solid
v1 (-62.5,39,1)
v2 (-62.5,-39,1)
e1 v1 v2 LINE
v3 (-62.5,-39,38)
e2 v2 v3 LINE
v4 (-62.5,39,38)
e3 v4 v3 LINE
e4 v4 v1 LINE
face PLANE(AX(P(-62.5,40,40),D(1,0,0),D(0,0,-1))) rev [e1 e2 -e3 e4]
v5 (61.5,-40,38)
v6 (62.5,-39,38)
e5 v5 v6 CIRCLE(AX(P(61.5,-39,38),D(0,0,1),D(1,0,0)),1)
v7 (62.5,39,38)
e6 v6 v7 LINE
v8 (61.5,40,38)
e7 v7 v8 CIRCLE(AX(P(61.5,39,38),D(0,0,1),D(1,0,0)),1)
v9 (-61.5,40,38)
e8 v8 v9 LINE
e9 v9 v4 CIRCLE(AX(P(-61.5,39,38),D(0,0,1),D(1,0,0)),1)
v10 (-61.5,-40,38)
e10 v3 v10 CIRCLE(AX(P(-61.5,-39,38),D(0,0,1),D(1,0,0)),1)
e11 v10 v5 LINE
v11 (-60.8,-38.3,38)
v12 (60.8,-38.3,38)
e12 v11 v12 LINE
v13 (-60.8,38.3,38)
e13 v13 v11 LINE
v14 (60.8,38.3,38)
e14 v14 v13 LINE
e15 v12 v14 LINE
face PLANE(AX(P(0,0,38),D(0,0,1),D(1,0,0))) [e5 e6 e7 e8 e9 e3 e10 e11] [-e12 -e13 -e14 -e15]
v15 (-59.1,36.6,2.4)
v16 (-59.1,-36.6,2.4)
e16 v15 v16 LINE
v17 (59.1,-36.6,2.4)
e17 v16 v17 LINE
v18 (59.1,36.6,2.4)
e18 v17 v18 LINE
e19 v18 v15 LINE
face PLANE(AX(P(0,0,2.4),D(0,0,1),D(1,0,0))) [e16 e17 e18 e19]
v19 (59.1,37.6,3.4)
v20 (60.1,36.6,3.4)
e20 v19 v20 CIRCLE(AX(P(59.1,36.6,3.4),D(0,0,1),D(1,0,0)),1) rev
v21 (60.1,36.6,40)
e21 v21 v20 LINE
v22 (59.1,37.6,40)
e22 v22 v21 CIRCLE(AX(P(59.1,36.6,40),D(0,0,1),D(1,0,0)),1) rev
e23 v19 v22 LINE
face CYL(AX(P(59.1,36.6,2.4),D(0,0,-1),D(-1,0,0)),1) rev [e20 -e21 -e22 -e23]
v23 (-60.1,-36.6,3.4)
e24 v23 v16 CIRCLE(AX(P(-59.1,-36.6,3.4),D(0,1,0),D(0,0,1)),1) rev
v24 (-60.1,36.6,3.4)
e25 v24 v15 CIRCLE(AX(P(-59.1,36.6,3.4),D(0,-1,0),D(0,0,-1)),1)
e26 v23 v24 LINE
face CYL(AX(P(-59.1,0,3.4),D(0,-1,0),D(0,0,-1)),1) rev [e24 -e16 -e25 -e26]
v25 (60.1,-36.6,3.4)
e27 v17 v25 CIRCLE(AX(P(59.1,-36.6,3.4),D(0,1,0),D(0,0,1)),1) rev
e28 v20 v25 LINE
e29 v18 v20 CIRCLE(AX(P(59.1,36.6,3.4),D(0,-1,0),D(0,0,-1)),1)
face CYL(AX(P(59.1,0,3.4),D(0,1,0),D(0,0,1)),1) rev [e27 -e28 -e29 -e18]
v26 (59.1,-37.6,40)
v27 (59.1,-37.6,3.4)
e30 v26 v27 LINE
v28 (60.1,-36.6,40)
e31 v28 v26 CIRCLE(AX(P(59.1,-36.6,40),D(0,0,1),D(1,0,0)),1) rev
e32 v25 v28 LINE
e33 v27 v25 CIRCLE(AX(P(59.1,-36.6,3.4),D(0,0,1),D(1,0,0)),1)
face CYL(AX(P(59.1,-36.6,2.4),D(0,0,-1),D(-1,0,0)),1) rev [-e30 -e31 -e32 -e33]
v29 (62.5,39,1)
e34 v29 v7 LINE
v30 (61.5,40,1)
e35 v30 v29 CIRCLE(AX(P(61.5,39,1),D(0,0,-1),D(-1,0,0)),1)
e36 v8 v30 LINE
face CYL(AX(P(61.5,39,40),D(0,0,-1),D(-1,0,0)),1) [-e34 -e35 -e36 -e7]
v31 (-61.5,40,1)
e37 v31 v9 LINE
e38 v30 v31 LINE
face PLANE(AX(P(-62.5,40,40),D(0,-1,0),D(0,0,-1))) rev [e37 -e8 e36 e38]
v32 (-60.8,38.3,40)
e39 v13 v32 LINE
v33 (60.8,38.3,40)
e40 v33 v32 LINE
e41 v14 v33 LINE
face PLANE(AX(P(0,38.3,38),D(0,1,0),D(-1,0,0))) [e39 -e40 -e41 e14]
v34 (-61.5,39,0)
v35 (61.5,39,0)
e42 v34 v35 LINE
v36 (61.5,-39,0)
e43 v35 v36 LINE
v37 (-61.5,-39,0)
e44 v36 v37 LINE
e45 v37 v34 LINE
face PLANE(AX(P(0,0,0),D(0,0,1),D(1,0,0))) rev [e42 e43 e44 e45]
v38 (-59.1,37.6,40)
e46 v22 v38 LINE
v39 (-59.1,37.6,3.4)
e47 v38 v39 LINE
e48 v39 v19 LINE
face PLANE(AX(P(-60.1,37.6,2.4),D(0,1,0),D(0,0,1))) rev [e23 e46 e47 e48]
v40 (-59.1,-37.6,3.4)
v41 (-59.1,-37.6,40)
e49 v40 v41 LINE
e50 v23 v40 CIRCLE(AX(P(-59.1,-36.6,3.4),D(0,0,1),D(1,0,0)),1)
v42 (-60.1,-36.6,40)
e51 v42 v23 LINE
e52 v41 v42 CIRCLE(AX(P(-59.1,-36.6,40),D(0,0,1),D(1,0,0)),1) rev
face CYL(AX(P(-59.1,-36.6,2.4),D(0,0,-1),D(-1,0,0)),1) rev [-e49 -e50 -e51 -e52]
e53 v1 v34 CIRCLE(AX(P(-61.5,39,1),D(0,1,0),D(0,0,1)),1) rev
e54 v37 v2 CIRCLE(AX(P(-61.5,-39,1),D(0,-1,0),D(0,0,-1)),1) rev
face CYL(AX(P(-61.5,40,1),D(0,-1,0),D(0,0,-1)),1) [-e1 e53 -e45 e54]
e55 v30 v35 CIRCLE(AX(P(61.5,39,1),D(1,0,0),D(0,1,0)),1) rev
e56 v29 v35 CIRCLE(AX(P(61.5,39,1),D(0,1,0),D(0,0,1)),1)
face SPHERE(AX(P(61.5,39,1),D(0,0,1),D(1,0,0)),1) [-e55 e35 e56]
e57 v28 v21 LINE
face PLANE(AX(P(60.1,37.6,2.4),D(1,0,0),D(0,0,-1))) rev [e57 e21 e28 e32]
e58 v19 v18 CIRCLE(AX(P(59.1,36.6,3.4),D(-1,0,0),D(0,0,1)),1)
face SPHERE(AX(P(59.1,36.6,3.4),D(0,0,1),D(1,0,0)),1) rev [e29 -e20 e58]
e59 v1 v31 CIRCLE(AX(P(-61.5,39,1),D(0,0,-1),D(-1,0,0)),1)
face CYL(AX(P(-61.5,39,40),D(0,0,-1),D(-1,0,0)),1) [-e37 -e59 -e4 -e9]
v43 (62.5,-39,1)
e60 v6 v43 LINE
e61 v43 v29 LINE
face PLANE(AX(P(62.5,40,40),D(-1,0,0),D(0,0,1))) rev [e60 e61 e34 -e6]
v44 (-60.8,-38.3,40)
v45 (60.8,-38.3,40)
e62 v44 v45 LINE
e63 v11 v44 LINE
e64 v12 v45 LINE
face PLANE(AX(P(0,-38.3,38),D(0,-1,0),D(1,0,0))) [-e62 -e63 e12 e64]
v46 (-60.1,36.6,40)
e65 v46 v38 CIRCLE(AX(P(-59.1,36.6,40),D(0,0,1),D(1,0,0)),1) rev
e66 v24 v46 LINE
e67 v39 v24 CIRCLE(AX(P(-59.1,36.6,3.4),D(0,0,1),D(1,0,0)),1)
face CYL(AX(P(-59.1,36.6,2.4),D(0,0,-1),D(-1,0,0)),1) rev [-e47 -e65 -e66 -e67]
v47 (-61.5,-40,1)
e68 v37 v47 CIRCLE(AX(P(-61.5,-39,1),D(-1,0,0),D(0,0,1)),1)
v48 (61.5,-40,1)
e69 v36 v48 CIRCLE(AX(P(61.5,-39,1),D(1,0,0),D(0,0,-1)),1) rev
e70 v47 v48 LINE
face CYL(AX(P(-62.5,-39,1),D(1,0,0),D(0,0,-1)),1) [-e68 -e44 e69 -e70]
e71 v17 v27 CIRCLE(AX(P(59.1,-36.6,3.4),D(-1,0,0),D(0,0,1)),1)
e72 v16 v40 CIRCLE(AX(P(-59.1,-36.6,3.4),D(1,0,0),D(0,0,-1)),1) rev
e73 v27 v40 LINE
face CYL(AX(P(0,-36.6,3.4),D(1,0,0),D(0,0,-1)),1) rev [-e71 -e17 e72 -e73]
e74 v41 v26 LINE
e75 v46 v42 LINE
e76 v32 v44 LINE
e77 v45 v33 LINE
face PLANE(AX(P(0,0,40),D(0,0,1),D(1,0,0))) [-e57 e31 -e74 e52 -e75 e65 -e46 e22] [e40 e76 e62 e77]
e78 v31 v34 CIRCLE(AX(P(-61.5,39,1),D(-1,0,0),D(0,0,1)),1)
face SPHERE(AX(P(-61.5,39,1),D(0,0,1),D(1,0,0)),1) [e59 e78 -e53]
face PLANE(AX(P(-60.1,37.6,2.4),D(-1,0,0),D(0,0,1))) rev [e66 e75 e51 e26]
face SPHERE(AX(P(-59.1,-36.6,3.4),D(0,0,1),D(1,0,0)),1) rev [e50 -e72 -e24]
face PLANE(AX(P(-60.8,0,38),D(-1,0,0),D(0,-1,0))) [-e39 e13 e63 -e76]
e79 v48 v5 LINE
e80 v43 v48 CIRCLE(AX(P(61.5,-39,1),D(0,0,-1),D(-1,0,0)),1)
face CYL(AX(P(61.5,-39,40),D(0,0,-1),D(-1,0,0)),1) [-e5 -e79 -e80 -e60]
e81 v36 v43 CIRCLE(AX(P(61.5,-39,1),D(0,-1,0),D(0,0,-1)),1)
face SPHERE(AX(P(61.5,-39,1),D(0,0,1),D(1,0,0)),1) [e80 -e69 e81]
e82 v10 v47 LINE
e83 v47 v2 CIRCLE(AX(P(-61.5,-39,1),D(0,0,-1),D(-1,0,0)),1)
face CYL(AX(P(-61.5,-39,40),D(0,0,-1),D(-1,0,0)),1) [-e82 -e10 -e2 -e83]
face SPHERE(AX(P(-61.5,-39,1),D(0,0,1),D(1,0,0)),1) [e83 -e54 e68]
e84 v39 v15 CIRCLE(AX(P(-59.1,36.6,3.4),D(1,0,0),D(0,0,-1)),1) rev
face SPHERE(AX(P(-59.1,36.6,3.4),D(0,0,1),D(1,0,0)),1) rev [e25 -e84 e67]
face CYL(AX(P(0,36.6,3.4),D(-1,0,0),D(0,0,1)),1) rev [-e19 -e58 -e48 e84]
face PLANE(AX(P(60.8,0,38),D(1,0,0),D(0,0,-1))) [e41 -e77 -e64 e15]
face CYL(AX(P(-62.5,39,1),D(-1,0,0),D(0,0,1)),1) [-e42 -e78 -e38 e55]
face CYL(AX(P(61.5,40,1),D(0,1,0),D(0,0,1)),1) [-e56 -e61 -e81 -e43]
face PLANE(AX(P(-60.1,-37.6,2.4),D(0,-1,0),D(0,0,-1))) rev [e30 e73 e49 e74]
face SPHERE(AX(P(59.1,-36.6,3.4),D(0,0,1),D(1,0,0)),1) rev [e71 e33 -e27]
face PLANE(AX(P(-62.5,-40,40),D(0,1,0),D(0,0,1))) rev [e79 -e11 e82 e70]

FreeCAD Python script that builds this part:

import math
import FreeCAD as App
import Part
import Sketcher
from FreeCAD import Vector


def edges_at(feature, points):
    """Names of the edges that pass closest to the given points."""
    edges = feature.Shape.Edges
    near = lambda p: min(range(len(edges)), key=lambda i: edges[i].distToShape(Part.Vertex(*p))[0])
    return sorted({f"Edge{near(p) + 1}" for p in points})

doc = App.newDocument("Part")
body = doc.addObject("PartDesign::Body", "Body")

# Sketch on XY plane
sketch1 = doc.addObject("Sketcher::SketchObject", "Sketch")
body.addObject(sketch1)
sketch1.AttachmentSupport = (doc.XY_Plane, [""])
sketch1.MapMode = "FlatFace"
sketch1.addGeometry([
    Part.LineSegment(Vector(-62, 40, 0), Vector(-62, -40, 0)),
    Part.LineSegment(Vector(-62, -40, 0), Vector(62, -40, 0)),
    Part.LineSegment(Vector(62, -40, 0), Vector(62, 40, 0)),
    Part.LineSegment(Vector(62, 40, 0), Vector(-62, 40, 0)),
], False)
sketch1.addConstraint([
    Sketcher.Constraint("Coincident", 0, 2, 1, 1),
    Sketcher.Constraint("Coincident", 1, 2, 2, 1),
    Sketcher.Constraint("Coincident", 2, 2, 3, 1),
    Sketcher.Constraint("Coincident", 3, 2, 0, 1),
    Sketcher.Constraint("Vertical", 0),
    Sketcher.Constraint("Horizontal", 1),
    Sketcher.Constraint("Vertical", 2),
    Sketcher.Constraint("Horizontal", 3),
    Sketcher.Constraint("Symmetric", 0, 2, 2, 2, -1, 1),
    Sketcher.Constraint("DistanceX", 1, 1, 1, 2, 125.0),
    Sketcher.Constraint("DistanceY", 0, 2, 0, 1, 80.0),
])
pad1 = doc.addObject("PartDesign::Pad", "Pad")
body.addObject(pad1)
pad1.Profile = sketch1
pad1.Length = 40

# Sketch on XY plane
sketch2 = doc.addObject("Sketcher::SketchObject", "Sketch001")
body.addObject(sketch2)
sketch2.AttachmentSupport = (doc.XY_Plane, [""])
sketch2.MapMode = "FlatFace"
sketch2.AttachmentOffset = App.Placement(Vector(0, 0, 40), App.Rotation())
sketch2.addGeometry([
    Part.LineSegment(Vector(-60, 38, 0), Vector(-60, -38, 0)),
    Part.LineSegment(Vector(-60, -38, 0), Vector(60, -38, 0)),
    Part.LineSegment(Vector(60, -38, 0), Vector(60, 38, 0)),
    Part.LineSegment(Vector(60, 38, 0), Vector(-60, 38, 0)),
], False)
sketch2.addConstraint([
    Sketcher.Constraint("Coincident", 0, 2, 1, 1),
    Sketcher.Constraint("Coincident", 1, 2, 2, 1),
    Sketcher.Constraint("Coincident", 2, 2, 3, 1),
    Sketcher.Constraint("Coincident", 3, 2, 0, 1),
    Sketcher.Constraint("Vertical", 0),
    Sketcher.Constraint("Horizontal", 1),
    Sketcher.Constraint("Vertical", 2),
    Sketcher.Constraint("Horizontal", 3),
    Sketcher.Constraint("Symmetric", 0, 2, 2, 2, -1, 1),
    Sketcher.Constraint("DistanceX", 1, 1, 1, 2, 120.2),
    Sketcher.Constraint("DistanceY", 0, 2, 0, 1, 75.2),
])
pocket1 = doc.addObject("PartDesign::Pocket", "Pocket")
body.addObject(pocket1)
pocket1.Profile = sketch2
pocket1.Length = 37.6
doc.recompute()

fillet = doc.addObject("PartDesign::Fillet", "Fillet")
body.addObject(fillet)
fillet.Base = (pocket1, edges_at(pocket1, [
    (0, -40, 0),
    (-62.5, 0, 0),
    (0, 40, 0),
    (62.5, 0, 0),
    (62.5, -40, 20),
    (-62.5, -40, 20),
    (-62.5, 40, 20),
    (62.5, 40, 20),
]))
fillet.Radius = 1
doc.recompute()

fillet2 = doc.addObject("PartDesign::Fillet", "Fillet001")
body.addObject(fillet2)
fillet2.Base = (fillet, edges_at(fillet, [
    (60.1, 0, 2.4),
    (60.1, 37.6, 21.2),
    (0, -37.6, 2.4),
    (60.1, -37.6, 21.2),
    (-60.1, 0, 2.4),
    (-60.1, -37.6, 21.2),
    (0, 37.6, 2.4),
    (-60.1, 37.6, 21.2),
]))
fillet2.Radius = 1

# Sketch on XY plane
sketch3 = doc.addObject("Sketcher::SketchObject", "Sketch002")
body.addObject(sketch3)
sketch3.AttachmentSupport = (doc.XY_Plane, [""])
sketch3.MapMode = "FlatFace"
sketch3.AttachmentOffset = App.Placement(Vector(0, 0, 40), App.Rotation())
sketch3.addGeometry([
    Part.ArcOfCircle(Part.Circle(Vector(-61.5, -39, 0), Vector(0, 0, 1), 1), math.radians(-180), math.radians(-90)),  # 0
    Part.LineSegment(Vector(-61.5, -40, 0), Vector(61.5, -40, 0)),  # 1
    Part.ArcOfCircle(Part.Circle(Vector(61.5, -39, 0), Vector(0, 0, 1), 1), math.radians(-90), math.radians(0)),  # 2
    Part.LineSegment(Vector(62.5, -39, 0), Vector(62.5, 39, 0)),  # 3
    Part.ArcOfCircle(Part.Circle(Vector(61.5, 39, 0), Vector(0, 0, 1), 1), math.radians(0), math.radians(90)),  # 4
    Part.LineSegment(Vector(61.5, 40, 0), Vector(-61.5, 40, 0)),  # 5
    Part.ArcOfCircle(Part.Circle(Vector(-61.5, 39, 0), Vector(0, 0, 1), 1), math.radians(90), math.radians(180)),  # 6
    Part.LineSegment(Vector(-62.5, 39, 0), Vector(-62.5, -39, 0)),  # 7
    Part.LineSegment(Vector(60.8, -38.3, 0), Vector(-60.8, -38.3, 0)),  # 8
    Part.LineSegment(Vector(-60.8, -38.3, 0), Vector(-60.8, 38.3, 0)),  # 9
    Part.LineSegment(Vector(-60.8, 38.3, 0), Vector(60.8, 38.3, 0)),  # 10
    Part.LineSegment(Vector(60.8, 38.3, 0), Vector(60.8, -38.3, 0)),  # 11
], False)
sketch3.addConstraint([
    Sketcher.Constraint("Tangent", 0, 2, 1, 1),
    Sketcher.Constraint("Tangent", 1, 2, 2, 1),
    Sketcher.Constraint("Tangent", 2, 2, 3, 1),
    Sketcher.Constraint("Tangent", 3, 2, 4, 1),
    Sketcher.Constraint("Tangent", 4, 2, 5, 1),
    Sketcher.Constraint("Tangent", 5, 2, 6, 1),
    Sketcher.Constraint("Tangent", 6, 2, 7, 1),
    Sketcher.Constraint("Tangent", 7, 2, 0, 1),
    Sketcher.Constraint("Coincident", 8, 2, 9, 1),
    Sketcher.Constraint("Coincident", 9, 2, 10, 1),
    Sketcher.Constraint("Coincident", 10, 2, 11, 1),
    Sketcher.Constraint("Coincident", 11, 2, 8, 1),
    Sketcher.Constraint("Horizontal", 1),
    Sketcher.Constraint("Vertical", 3),
    Sketcher.Constraint("Horizontal", 5),
    Sketcher.Constraint("Vertical", 7),
    Sketcher.Constraint("Horizontal", 8),
    Sketcher.Constraint("Vertical", 9),
    Sketcher.Constraint("Horizontal", 10),
    Sketcher.Constraint("Vertical", 11),
    Sketcher.Constraint("Equal", 0, 2),
    Sketcher.Constraint("Equal", 2, 4),
    Sketcher.Constraint("Equal", 4, 6),
    Sketcher.Constraint("Symmetric", 0, 3, 4, 3, -1, 1),
    Sketcher.Constraint("Symmetric", 8, 2, 10, 2, -1, 1),
    Sketcher.Constraint("Radius", 0, 1.0),
    Sketcher.Constraint("DistanceX", 1, 1, 1, 2, 123.0),
    Sketcher.Constraint("DistanceY", 3, 1, 3, 2, 78.0),
    Sketcher.Constraint("DistanceX", 8, 2, 8, 1, 121.6),
    Sketcher.Constraint("DistanceY", 9, 1, 9, 2, 76.6),
])
pocket2 = doc.addObject("PartDesign::Pocket", "Pocket001")
body.addObject(pocket2)
pocket2.Profile = sketch3
pocket2.Length = 2

doc.recompute()
